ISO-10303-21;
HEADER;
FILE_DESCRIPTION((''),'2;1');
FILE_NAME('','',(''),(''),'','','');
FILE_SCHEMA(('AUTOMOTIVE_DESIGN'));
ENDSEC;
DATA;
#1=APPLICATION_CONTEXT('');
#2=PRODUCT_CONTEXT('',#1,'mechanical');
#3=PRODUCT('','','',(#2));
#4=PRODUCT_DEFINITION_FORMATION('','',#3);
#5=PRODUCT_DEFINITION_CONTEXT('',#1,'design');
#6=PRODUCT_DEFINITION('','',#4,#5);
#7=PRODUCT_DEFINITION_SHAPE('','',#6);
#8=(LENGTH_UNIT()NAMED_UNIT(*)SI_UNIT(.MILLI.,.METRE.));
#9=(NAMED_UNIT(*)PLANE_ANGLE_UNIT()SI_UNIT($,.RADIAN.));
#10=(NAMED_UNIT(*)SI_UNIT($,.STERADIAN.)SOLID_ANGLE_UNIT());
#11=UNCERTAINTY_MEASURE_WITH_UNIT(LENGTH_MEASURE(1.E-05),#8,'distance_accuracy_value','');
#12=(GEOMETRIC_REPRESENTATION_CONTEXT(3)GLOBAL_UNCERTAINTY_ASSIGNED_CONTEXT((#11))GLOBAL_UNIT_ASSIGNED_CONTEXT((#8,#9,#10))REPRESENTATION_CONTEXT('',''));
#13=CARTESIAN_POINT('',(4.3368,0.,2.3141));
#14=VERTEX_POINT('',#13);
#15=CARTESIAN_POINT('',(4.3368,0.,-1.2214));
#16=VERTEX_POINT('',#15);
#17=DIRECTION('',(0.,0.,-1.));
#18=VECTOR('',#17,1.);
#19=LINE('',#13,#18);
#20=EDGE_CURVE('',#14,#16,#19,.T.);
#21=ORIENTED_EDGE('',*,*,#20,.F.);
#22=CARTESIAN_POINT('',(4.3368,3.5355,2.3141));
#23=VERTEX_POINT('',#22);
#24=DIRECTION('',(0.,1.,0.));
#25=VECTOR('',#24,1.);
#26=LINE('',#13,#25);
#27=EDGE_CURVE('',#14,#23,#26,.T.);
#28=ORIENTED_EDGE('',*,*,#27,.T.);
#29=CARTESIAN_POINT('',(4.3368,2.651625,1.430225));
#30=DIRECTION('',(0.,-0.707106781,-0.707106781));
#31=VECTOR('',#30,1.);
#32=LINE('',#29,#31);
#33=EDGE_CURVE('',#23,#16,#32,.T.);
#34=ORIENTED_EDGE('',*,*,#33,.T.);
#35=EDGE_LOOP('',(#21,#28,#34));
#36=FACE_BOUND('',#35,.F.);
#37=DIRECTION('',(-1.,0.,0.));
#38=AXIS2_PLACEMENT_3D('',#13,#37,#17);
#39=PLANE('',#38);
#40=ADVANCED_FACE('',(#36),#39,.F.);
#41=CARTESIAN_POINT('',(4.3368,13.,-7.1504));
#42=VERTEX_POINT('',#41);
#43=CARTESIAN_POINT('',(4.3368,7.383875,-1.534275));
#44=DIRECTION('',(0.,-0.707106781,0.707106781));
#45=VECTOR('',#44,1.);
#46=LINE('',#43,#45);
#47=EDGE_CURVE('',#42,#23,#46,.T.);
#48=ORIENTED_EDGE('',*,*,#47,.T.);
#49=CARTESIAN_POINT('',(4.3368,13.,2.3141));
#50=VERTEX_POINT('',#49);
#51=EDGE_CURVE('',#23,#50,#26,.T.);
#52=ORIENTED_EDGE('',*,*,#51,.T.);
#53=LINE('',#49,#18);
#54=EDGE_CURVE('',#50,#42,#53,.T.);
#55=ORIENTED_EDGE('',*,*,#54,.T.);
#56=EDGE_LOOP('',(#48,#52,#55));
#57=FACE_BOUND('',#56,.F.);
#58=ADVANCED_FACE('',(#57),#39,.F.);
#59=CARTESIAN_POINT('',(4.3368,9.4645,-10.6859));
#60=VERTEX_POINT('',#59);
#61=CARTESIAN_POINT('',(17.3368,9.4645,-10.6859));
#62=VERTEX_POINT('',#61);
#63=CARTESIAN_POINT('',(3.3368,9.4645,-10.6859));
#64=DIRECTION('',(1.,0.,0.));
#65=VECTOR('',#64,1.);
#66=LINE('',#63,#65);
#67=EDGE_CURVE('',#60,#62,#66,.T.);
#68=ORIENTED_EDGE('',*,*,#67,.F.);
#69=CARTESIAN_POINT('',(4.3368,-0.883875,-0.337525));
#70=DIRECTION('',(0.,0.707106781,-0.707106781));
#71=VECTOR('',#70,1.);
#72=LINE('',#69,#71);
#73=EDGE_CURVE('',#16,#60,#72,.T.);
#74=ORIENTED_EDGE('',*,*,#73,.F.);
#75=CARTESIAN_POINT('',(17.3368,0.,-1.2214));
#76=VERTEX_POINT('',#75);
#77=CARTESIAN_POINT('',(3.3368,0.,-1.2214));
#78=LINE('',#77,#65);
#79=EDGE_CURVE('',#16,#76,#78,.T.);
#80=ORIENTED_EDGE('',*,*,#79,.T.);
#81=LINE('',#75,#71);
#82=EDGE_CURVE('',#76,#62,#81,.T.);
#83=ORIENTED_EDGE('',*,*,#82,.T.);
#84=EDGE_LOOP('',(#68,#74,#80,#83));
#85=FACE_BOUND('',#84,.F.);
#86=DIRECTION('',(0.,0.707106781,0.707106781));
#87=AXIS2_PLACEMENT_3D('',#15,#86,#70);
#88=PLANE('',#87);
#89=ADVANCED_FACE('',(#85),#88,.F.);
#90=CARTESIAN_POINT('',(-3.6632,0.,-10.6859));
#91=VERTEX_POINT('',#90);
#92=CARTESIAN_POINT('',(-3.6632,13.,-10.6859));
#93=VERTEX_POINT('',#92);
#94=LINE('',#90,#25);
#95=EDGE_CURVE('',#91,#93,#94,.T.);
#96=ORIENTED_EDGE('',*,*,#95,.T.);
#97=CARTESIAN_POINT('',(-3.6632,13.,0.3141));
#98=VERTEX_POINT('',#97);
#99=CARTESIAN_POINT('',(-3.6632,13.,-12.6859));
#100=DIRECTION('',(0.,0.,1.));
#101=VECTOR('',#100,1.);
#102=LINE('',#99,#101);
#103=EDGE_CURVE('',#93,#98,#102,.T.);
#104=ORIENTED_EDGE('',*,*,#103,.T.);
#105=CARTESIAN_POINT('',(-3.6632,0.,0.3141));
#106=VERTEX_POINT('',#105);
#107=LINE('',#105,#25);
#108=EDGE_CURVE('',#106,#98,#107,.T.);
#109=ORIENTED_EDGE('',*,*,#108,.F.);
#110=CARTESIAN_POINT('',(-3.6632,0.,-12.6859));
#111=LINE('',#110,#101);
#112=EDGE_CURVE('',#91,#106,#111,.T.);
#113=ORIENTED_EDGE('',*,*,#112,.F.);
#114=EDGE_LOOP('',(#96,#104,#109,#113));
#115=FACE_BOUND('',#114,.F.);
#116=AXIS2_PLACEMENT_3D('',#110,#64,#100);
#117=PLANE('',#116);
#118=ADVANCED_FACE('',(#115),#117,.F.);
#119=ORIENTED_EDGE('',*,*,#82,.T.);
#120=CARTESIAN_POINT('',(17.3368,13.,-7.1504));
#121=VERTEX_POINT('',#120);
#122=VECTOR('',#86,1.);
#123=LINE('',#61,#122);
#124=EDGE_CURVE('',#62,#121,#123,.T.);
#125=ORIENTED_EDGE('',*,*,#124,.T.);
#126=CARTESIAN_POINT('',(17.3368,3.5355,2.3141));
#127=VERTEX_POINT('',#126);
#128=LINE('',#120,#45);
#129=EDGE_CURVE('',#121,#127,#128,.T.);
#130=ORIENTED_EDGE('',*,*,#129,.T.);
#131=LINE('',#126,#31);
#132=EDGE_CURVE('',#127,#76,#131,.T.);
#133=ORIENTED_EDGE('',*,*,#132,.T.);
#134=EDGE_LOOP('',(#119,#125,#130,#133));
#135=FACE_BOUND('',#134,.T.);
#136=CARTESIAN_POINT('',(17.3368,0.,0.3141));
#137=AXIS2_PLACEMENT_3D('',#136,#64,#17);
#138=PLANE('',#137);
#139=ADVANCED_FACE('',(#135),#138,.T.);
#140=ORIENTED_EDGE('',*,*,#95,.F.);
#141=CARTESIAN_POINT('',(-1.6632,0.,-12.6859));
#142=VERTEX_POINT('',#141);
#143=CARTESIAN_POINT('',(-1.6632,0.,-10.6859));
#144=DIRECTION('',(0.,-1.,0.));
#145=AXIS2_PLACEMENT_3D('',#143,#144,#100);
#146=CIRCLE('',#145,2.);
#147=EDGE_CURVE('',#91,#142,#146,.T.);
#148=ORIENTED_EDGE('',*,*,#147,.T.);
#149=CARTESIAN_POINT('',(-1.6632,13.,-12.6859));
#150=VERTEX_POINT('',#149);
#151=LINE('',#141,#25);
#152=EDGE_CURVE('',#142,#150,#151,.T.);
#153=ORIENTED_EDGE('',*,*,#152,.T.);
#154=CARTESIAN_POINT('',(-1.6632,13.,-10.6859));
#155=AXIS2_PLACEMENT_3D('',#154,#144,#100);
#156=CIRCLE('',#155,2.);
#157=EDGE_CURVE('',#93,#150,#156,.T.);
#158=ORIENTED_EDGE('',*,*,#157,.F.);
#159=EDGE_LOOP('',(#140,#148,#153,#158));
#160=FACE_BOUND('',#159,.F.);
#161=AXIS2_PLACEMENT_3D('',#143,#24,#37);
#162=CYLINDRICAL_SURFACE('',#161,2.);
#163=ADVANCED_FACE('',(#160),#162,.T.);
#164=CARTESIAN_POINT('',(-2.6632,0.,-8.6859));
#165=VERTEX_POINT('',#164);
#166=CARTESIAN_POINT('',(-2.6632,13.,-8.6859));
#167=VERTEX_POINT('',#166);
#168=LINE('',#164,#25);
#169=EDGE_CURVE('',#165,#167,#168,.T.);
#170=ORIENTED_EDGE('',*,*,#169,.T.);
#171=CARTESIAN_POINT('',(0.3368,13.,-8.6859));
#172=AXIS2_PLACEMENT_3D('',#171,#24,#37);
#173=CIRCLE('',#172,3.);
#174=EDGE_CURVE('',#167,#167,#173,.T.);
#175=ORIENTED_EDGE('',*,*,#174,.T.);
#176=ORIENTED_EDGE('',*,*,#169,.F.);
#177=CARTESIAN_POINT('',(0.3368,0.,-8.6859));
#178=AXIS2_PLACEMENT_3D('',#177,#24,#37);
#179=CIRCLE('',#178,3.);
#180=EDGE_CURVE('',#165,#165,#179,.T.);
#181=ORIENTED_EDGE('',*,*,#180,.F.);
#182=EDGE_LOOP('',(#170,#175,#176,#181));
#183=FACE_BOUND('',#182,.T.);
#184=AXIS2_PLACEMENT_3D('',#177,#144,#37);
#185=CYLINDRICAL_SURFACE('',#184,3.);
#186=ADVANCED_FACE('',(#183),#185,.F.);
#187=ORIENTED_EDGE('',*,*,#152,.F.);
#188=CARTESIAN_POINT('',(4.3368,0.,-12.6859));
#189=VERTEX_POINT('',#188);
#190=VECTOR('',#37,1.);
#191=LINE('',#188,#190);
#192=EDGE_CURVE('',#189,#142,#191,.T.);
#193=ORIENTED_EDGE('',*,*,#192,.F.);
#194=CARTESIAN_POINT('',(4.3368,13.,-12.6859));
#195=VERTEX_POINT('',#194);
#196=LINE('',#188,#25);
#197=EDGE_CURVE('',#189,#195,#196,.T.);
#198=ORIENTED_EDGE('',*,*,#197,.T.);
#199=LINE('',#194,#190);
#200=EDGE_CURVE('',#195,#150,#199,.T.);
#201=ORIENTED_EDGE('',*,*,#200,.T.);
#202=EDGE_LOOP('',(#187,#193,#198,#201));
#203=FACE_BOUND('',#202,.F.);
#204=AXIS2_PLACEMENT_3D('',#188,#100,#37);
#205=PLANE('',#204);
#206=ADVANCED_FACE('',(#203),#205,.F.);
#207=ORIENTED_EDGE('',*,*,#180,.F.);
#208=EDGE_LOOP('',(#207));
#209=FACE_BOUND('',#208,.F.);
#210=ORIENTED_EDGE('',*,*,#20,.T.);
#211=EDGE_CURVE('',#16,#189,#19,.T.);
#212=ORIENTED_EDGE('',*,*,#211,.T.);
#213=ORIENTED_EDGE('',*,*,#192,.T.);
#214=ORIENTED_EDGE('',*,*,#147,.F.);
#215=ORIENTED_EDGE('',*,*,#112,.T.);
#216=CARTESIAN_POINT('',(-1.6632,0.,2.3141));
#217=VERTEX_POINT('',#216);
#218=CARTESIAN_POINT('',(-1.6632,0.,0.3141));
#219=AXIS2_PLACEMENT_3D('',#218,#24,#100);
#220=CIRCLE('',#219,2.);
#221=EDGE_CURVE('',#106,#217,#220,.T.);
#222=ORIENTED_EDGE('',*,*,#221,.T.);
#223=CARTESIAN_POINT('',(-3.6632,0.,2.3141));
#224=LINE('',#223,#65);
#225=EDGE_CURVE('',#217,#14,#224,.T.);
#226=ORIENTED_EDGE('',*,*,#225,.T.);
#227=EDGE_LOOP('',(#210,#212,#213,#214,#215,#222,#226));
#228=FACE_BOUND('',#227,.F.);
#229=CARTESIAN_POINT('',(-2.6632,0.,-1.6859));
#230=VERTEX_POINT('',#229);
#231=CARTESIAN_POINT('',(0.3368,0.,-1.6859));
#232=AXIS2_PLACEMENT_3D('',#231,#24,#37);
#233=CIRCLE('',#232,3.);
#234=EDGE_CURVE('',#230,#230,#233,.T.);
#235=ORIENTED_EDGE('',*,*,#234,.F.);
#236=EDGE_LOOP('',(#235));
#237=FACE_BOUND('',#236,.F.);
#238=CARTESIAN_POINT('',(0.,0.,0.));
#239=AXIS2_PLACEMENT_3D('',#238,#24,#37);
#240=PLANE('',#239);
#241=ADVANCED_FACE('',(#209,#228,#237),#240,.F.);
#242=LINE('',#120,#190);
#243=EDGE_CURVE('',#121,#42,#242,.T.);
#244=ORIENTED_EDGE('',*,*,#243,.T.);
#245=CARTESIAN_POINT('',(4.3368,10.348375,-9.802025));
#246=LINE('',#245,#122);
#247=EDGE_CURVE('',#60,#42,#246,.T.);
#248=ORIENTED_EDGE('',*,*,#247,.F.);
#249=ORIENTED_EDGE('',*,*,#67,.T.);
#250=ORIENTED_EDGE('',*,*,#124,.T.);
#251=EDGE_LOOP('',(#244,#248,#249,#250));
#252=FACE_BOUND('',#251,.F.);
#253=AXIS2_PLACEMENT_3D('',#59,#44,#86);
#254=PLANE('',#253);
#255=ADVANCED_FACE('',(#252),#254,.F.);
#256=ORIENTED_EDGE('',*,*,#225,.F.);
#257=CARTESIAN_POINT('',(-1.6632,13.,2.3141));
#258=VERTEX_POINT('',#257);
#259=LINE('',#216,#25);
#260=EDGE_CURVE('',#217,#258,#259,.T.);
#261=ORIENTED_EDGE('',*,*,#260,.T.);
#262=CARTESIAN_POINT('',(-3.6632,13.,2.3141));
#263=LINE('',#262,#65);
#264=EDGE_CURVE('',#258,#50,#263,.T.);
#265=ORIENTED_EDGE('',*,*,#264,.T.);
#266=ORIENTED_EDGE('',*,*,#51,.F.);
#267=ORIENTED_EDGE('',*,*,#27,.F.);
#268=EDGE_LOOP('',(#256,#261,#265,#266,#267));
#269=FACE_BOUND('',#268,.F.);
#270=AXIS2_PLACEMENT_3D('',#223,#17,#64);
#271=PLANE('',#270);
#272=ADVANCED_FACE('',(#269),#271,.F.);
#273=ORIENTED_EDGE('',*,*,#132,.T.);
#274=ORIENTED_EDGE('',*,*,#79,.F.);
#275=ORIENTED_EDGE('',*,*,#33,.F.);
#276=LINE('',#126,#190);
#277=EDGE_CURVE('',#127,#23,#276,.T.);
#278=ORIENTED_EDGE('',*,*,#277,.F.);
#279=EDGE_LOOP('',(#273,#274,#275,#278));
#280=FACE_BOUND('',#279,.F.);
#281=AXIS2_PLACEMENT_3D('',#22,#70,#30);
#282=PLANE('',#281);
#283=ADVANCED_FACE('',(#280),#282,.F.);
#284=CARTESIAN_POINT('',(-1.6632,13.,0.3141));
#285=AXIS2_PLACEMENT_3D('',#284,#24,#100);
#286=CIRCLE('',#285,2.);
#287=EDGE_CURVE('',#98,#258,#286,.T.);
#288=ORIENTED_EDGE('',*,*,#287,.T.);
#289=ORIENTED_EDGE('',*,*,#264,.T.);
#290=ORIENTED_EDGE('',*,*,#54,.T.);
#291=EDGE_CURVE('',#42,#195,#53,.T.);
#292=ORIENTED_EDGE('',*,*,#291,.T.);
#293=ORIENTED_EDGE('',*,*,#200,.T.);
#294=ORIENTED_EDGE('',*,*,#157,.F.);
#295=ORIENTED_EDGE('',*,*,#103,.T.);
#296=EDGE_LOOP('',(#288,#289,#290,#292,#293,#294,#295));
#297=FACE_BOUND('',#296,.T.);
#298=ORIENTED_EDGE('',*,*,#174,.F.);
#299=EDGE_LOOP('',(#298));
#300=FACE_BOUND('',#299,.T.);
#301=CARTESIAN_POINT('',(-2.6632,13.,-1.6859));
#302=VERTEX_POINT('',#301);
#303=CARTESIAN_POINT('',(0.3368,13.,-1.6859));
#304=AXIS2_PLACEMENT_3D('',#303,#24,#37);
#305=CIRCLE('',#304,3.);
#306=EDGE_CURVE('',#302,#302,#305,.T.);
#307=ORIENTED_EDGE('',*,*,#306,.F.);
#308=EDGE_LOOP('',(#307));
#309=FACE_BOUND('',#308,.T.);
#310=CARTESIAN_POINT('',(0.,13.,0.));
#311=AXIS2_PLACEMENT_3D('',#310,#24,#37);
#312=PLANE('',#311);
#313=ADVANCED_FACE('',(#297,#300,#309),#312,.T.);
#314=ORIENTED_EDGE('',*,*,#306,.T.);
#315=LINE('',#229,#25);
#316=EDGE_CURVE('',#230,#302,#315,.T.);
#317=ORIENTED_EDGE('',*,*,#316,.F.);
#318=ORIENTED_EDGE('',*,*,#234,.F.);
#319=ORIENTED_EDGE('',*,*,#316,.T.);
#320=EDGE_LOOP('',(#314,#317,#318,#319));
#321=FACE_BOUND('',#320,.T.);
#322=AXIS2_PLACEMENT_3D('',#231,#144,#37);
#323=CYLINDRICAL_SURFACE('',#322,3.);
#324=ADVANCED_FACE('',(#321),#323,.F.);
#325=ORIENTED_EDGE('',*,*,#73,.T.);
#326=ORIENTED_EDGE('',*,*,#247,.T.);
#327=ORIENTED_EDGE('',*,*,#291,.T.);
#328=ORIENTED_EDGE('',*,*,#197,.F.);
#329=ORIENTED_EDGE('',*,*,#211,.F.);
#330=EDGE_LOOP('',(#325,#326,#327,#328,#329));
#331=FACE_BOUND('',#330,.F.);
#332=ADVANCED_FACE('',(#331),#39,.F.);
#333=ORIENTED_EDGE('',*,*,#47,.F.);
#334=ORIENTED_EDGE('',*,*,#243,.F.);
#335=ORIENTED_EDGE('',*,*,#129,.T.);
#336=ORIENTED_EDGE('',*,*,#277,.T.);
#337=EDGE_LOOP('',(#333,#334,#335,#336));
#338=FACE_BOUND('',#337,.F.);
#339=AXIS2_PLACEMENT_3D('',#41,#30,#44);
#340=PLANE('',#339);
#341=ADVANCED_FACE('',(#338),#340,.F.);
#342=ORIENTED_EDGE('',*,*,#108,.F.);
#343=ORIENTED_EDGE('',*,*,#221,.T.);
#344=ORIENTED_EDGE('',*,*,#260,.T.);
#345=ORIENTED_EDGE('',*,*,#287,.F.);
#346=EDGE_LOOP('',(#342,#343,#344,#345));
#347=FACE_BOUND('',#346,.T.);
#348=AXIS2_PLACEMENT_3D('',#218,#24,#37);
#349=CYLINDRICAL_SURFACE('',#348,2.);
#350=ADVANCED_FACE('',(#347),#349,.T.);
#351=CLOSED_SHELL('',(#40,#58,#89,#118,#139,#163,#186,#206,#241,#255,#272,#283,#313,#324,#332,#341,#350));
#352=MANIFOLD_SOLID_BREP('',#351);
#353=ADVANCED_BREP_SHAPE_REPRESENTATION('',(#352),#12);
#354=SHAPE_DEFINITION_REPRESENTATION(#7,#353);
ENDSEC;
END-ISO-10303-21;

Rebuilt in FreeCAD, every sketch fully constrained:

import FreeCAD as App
import Part
import Sketcher
from FreeCAD import Vector
Q = App.Units.Quantity


def edges_at(feature, points):
    """Names of the edges that pass closest to the given points."""
    edges = feature.Shape.Edges
    near = lambda p: min(range(len(edges)), key=lambda i: edges[i].distToShape(Part.Vertex(*p))[0])
    return sorted({f"Edge{near(p) + 1}" for p in points})

doc = App.newDocument("Part")
body = doc.addObject("PartDesign::Body", "Body")

# Sketch on XZ plane
sketch1 = body.newObject("Sketcher::SketchObject", "Sketch")
sketch1.AttachmentSupport = (doc.getObject("XZ_Plane"), [""])
sketch1.MapMode = "FlatFace"
sketch1.addGeometry([
    Part.LineSegment(Vector(-3.6632, -12.6859, 0), Vector(-3.6632, 2.3141, 0)),  # 0
    Part.LineSegment(Vector(-3.6632, 2.3141, 0), Vector(4.3368, 2.3141, 0)),  # 1
    Part.LineSegment(Vector(4.3368, 2.3141, 0), Vector(4.3368, -12.6859, 0)),  # 2
    Part.LineSegment(Vector(4.3368, -12.6859, 0), Vector(-3.6632, -12.6859, 0)),  # 3
    Part.Circle(Vector(0.3368, -8.6859, 0), Vector(0, 0, 1), 3),  # 4
    Part.Circle(Vector(0.3368, -1.6859, 0), Vector(0, 0, 1), 3),  # 5
], False)
sketch1.addConstraint([
    Sketcher.Constraint("Coincident", 0, 2, 1, 1),
    Sketcher.Constraint("Coincident", 1, 2, 2, 1),
    Sketcher.Constraint("Coincident", 2, 2, 3, 1),
    Sketcher.Constraint("Coincident", 3, 2, 0, 1),
    Sketcher.Constraint("Vertical", 0),
    Sketcher.Constraint("Horizontal", 1),
    Sketcher.Constraint("Vertical", 2),
    Sketcher.Constraint("Horizontal", 3),
    Sketcher.Constraint("Equal", 4, 5),
    Sketcher.Constraint("Vertical", 4, 3, 5, 3),
    Sketcher.Constraint("Diameter", 4, Q("6 mm")),
    Sketcher.Constraint("DistanceX", 1, 1, 1, 2, Q("8 mm")),
    Sketcher.Constraint("DistanceY", 0, 1, 0, 2, Q("15 mm")),
    Sketcher.Constraint("DistanceY", 4, 3, 5, 3, Q("7 mm")),
    Sketcher.Constraint("DistanceX", 0, 2, 5, 3, Q("4 mm")),
    Sketcher.Constraint("DistanceY", 5, 3, 0, 2, Q("4 mm")),
    Sketcher.Constraint("DistanceY", 4, 3, -1, 1, Q("8.686 mm")),
    Sketcher.Constraint("DistanceX", -1, 1, 4, 3, Q("0.3368 mm")),
])
pad1 = body.newObject("PartDesign::Pad", "Pad")
pad1.Profile = sketch1
pad1.Length = 13
pad1.Reversed = True
doc.recompute()

fillet = body.newObject("PartDesign::Fillet", "Fillet")
fillet.Base = (pad1, edges_at(pad1, [(-3.663, 6.5, 2.314), (-3.663, 6.5, -12.686)]))
fillet.Radius = 2

# Sketch on YZ plane
sketch2 = body.newObject("Sketcher::SketchObject", "Sketch001")
sketch2.AttachmentSupport = (doc.getObject("YZ_Plane"), [""])
sketch2.MapMode = "FlatFace"
sketch2.AttachmentOffset = App.Placement(Vector(0, 0, 4.3368), App.Rotation())
sketch2.addGeometry([
    Part.LineSegment(Vector(3.5355, 2.3141, 0), Vector(0, -1.2214, 0)),
    Part.LineSegment(Vector(0, -1.2214, 0), Vector(9.4645, -10.6859, 0)),
    Part.LineSegment(Vector(9.4645, -10.6859, 0), Vector(13, -7.1504, 0)),
    Part.LineSegment(Vector(13, -7.1504, 0), Vector(3.5355, 2.3141, 0)),
], False)
sketch2.addConstraint([
    Sketcher.Constraint("Coincident", 0, 2, 1, 1),
    Sketcher.Constraint("Coincident", 1, 2, 2, 1),
    Sketcher.Constraint("Coincident", 2, 2, 3, 1),
    Sketcher.Constraint("Coincident", 3, 2, 0, 1),
    Sketcher.Constraint("PointOnObject", 0, 2, -2),
    Sketcher.Constraint("Perpendicular", 0, 1),
    Sketcher.Constraint("Perpendicular", 1, 2),
    Sketcher.Constraint("Perpendicular", 2, 3),
    Sketcher.Constraint("Angle", 1, Q("-45 deg")),
    Sketcher.Constraint("Distance", 0, Q("5 mm")),
    Sketcher.Constraint("DistanceX", -1, 1, 2, 2, Q("13 mm")),
    Sketcher.Constraint("DistanceY", 1, 2, -1, 1, Q("10.686 mm")),
])
pad2 = body.newObject("PartDesign::Pad", "Pad001")
pad2.Profile = sketch2
pad2.Type = "TwoLengths"
pad2.Length = 13
pad2.Length2 = 1

doc.recompute()
